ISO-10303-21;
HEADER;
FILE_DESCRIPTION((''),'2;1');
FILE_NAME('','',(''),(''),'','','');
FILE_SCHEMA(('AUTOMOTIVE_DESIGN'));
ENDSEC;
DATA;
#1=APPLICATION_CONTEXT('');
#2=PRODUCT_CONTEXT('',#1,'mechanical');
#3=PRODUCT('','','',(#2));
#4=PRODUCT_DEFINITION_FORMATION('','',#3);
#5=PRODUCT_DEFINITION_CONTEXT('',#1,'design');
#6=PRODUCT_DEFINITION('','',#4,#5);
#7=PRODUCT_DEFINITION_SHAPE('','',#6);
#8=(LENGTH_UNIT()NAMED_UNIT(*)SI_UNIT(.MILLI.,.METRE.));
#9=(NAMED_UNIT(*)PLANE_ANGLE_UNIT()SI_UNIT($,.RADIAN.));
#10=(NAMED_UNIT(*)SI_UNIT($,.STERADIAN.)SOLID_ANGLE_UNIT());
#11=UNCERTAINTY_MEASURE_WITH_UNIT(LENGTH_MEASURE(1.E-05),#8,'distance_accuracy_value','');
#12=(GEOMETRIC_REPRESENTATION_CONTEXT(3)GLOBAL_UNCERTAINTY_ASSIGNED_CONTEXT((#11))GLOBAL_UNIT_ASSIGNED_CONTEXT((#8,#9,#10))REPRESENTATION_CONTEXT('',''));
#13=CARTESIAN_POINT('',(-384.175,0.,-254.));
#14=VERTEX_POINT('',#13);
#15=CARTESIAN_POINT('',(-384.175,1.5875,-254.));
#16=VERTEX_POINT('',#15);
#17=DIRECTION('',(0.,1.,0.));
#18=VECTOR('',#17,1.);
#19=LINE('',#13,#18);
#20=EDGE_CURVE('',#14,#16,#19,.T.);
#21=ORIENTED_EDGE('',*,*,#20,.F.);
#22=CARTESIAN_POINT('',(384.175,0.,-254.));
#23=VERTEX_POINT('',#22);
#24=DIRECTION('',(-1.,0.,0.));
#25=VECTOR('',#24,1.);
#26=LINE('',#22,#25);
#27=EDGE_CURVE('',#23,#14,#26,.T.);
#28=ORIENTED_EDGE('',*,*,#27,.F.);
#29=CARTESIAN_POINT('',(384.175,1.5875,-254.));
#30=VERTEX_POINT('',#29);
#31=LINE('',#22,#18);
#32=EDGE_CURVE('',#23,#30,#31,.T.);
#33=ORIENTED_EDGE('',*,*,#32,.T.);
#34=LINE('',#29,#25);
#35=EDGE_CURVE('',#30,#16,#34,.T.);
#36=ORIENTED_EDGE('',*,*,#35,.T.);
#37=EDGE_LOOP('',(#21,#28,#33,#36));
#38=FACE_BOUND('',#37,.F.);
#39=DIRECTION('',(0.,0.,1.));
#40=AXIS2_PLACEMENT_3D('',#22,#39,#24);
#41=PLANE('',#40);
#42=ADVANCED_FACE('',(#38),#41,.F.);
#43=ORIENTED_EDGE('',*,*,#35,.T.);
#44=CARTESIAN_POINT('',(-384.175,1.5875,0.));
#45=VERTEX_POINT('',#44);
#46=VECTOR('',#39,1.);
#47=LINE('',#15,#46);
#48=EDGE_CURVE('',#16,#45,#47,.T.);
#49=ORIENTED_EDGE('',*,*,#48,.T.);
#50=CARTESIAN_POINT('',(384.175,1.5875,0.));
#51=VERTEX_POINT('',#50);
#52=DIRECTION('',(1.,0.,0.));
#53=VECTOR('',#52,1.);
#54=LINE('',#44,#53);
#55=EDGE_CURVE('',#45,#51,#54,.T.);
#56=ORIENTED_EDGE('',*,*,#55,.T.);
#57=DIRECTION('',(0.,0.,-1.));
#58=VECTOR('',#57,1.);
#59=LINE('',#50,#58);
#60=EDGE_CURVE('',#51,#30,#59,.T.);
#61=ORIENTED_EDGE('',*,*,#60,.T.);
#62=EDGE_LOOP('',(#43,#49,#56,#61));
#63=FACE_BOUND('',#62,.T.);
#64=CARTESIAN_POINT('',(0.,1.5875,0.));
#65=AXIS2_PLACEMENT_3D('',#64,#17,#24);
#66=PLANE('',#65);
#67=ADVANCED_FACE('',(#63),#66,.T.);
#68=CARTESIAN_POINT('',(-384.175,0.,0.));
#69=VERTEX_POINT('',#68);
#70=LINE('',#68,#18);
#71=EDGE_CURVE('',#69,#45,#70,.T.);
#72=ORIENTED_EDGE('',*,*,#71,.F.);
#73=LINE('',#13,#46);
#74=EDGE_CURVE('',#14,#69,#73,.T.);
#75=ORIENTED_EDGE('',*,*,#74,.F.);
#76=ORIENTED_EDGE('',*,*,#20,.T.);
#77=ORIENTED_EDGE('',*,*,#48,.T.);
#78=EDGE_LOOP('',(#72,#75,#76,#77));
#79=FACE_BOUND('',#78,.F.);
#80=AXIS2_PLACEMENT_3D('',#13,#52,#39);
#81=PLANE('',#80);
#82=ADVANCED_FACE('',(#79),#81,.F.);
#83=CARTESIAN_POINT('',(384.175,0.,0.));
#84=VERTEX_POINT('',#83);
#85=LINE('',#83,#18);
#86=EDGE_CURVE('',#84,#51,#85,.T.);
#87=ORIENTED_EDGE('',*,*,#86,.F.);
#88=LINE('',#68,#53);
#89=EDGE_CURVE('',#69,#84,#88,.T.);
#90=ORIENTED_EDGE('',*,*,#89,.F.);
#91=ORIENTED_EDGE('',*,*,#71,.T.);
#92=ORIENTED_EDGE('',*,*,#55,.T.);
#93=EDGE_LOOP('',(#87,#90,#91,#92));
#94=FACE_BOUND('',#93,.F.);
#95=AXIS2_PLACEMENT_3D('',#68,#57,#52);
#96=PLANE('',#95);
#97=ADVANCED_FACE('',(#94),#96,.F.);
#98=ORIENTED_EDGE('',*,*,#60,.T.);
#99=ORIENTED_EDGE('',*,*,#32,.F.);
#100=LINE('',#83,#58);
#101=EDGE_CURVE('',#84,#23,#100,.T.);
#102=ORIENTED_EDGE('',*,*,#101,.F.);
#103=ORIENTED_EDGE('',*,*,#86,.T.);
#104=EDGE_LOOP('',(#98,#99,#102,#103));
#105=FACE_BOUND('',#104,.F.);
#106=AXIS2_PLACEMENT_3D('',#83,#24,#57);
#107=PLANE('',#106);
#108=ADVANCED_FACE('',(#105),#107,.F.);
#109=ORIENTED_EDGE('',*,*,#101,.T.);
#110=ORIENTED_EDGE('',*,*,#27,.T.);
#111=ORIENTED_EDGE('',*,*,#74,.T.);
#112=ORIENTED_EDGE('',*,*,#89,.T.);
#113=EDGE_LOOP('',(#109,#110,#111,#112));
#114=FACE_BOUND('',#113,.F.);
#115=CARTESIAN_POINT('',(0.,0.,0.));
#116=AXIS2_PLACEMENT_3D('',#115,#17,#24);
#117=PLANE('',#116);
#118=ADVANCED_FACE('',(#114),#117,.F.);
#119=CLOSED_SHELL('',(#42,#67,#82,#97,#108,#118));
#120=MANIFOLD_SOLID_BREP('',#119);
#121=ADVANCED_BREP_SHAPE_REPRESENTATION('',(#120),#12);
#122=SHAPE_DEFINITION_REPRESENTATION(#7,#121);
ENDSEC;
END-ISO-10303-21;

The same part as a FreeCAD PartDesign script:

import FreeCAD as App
import Part
import Sketcher

V = App.Vector
Q = App.Units.Quantity


def add_polygon(sketch, points):
    """Adds a closed chain of lines whose ends are joined by coincident constraints."""
    first, n = sketch.GeometryCount, len(points)
    for a, b in zip(points, points[1:] + points[:1]):
        sketch.addGeometry(Part.LineSegment(App.Vector(*a, 0), App.Vector(*b, 0)), False)
    for i in range(n):
        sketch.addConstraint(Sketcher.Constraint("Coincident", first + i, 2, first + (i + 1) % n, 1))

doc = App.newDocument("Part")
body = doc.addObject("PartDesign::Body", "Body")

# Sketch on XZ plane
sketch1 = body.newObject("Sketcher::SketchObject", "Sketch")
sketch1.AttachmentSupport = (doc.getObject("XZ_Plane"), [""])
sketch1.MapMode = "FlatFace"
add_polygon(sketch1, [(-384.175, 0), (384.175, 0), (384.175, -254), (-384.175, -254)])  # lines 0-3
sketch1.addConstraint([
    Sketcher.Constraint("Horizontal", 0),
    Sketcher.Constraint("Vertical", 1),
    Sketcher.Constraint("Horizontal", 2),
    Sketcher.Constraint("Vertical", 3),
    Sketcher.Constraint("Symmetric", 0, 2, 3, 2, -1, 1),
    Sketcher.Constraint("DistanceY", 1, 2, 1, 1, Q("10 in")),
    Sketcher.Constraint("DistanceX", 0, 1, 0, 2, Q("30.25 in")),
])
pad1 = body.newObject("PartDesign::Pad", "Pad")
pad1.Profile = sketch1
pad1.Length = Q("0.0625 in")
pad1.Reversed = True

doc.recompute()
